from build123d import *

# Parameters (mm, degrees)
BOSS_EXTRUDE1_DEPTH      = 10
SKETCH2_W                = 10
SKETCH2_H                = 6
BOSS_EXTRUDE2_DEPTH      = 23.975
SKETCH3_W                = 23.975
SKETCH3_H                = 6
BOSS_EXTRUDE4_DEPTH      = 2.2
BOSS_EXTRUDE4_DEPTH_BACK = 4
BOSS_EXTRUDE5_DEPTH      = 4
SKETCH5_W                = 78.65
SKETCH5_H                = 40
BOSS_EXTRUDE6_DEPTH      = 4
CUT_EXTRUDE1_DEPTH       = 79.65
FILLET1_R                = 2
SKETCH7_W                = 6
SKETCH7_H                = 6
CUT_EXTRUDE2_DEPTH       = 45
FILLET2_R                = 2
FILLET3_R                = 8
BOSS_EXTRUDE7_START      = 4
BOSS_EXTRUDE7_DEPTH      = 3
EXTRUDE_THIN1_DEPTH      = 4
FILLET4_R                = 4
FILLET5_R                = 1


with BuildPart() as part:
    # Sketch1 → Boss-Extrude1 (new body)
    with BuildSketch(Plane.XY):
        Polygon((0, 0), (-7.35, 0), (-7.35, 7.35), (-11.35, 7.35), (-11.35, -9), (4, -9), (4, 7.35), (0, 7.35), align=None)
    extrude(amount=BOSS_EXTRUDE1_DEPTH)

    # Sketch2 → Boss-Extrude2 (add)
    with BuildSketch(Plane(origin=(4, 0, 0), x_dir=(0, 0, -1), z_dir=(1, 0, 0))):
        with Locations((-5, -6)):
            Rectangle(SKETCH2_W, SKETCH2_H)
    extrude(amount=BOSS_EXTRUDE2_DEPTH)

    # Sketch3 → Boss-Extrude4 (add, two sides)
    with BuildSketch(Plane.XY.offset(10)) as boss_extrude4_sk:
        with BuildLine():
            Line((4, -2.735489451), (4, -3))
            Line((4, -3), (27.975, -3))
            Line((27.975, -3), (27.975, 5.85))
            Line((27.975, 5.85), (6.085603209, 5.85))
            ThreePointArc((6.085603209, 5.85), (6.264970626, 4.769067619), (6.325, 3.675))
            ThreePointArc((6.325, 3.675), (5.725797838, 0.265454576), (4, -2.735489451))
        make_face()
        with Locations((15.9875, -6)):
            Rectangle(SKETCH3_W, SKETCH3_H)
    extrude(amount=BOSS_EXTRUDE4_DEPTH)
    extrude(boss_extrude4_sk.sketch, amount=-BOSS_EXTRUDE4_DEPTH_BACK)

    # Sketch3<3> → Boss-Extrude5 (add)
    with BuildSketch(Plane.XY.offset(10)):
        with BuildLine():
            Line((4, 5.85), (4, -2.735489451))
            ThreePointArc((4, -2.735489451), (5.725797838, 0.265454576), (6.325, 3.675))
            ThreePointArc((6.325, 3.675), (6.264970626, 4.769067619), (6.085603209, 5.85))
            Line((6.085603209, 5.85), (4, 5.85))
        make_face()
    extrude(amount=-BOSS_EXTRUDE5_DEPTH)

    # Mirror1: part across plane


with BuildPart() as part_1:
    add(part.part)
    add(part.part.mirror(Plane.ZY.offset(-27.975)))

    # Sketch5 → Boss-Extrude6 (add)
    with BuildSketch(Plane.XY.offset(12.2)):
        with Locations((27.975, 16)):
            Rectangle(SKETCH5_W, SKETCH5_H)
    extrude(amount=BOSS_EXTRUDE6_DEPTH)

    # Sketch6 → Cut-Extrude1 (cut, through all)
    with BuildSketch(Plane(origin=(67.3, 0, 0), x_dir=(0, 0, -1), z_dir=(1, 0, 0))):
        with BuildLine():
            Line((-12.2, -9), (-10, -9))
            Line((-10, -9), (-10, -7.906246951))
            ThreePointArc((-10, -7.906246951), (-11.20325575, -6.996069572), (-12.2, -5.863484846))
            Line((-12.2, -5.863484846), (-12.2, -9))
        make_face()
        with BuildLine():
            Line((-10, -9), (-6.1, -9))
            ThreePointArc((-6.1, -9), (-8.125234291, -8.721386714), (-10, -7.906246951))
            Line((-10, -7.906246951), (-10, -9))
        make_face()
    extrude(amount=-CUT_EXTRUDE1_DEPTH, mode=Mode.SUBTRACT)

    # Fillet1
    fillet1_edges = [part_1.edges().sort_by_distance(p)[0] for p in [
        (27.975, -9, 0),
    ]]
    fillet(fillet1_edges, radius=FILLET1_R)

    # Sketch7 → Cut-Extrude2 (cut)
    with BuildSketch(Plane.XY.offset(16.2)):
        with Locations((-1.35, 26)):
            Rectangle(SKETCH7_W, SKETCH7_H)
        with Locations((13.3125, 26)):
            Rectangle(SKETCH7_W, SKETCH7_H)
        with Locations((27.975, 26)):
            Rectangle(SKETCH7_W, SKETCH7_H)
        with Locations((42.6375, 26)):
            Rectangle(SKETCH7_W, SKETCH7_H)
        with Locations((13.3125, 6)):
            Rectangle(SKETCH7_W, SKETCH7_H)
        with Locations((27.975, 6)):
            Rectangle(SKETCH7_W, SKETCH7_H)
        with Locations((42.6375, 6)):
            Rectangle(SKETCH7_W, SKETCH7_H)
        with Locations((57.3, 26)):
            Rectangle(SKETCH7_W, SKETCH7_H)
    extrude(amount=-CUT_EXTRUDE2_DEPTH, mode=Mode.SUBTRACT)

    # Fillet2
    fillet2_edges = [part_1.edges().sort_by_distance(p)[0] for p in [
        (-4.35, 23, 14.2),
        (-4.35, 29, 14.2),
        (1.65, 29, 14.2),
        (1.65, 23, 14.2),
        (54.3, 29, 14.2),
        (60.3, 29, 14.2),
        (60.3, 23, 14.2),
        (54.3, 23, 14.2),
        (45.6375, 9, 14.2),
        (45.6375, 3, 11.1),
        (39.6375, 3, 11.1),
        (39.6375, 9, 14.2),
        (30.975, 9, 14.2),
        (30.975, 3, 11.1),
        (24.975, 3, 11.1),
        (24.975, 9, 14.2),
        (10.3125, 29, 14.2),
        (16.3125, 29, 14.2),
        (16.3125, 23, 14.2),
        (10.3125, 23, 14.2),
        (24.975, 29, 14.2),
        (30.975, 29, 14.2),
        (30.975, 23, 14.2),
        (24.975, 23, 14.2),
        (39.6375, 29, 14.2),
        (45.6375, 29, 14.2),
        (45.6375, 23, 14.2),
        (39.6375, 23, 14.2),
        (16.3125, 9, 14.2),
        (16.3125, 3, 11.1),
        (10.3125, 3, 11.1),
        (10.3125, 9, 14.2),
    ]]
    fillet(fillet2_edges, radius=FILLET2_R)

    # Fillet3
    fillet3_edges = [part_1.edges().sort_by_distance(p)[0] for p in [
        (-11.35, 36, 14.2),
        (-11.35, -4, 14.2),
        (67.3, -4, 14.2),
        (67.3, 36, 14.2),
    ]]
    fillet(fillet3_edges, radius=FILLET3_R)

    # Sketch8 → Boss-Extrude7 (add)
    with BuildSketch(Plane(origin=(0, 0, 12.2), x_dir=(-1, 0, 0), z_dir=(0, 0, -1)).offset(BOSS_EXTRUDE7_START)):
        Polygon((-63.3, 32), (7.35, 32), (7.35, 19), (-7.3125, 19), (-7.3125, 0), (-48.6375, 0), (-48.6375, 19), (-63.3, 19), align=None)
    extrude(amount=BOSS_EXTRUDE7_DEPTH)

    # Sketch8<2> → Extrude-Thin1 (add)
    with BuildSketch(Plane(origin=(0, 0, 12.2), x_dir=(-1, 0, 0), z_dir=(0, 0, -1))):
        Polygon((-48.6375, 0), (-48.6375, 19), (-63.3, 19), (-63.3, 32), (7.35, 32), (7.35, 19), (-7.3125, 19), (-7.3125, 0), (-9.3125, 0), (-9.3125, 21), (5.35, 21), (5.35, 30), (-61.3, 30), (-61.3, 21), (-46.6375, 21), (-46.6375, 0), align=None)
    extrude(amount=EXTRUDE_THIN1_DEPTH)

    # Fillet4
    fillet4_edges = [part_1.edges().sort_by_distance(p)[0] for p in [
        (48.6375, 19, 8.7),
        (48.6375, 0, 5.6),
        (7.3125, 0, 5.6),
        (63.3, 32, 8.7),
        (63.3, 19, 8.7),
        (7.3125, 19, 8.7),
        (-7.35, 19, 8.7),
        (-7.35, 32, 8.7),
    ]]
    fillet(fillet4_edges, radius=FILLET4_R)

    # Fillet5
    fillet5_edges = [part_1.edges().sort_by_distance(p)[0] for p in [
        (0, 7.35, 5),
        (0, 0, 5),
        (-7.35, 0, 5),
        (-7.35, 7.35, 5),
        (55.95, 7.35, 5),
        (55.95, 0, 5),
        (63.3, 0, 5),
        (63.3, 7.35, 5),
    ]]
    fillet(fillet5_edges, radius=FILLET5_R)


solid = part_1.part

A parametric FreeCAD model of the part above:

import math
import FreeCAD as App
import Part
import Sketcher
Q = App.Units.Quantity


def edges_at(feature, points):
    """Names of the edges that pass closest to the given points."""
    edges = feature.Shape.Edges
    near = lambda p: min(range(len(edges)), key=lambda i: edges[i].distToShape(Part.Vertex(*p))[0])
    return sorted({f"Edge{near(p) + 1}" for p in points})

doc = App.newDocument("Part")
params = doc.addObject("Spreadsheet::Sheet", "Params")
for row, (alias, value) in enumerate([
    ("sketch1_width", "4 mm"),
    ("sketch1_width2", "7.35 mm"),
    ("pad1_length", "10 mm"),
    ("sketch2_width", "6 mm"),
    ("sketch2_height", "10 mm"),
    ("pad2_length", "23.975 mm"),
    ("sketch3_radius", "10 mm"),
    ("sketch3_height", "14.85 mm"),
    ("pad3_length", "2.2 mm"),
    ("pad3_length2", "4 mm"),
    ("sketch4_radius", "10 mm"),
    ("pad4_length", "4 mm"),
    ("sketch5_height", "40 mm"),
    ("sketch5_width", "78.65 mm"),
    ("pad5_length", "4 mm"),
    ("sketch6_radius", "7.5 mm"),
    ("sketch6_height", "6.1 mm"),
    ("fillet_radius", "2 mm"),
    ("sketch7_width", "6 mm"),
    ("pocket2_length", "45 mm"),
    ("fillet2_radius", "2 mm"),
    ("fillet3_radius", "8 mm"),
    ("sketch8_height", "13 mm"),
    ("sketch8_height2", "19 mm"),
    ("sketch8_width", "70.65 mm"),
    ("pad6_length", "3 mm"),
    ("sketch9_width", "2 mm"),
    ("sketch9_height", "19 mm"),
    ("sketch9_height2", "21 mm"),
    ("sketch9_height3", "9 mm"),
    ("sketch9_height4", "13 mm"),
    ("pad7_length", "4 mm"),
    ("fillet4_radius", "4 mm"),
    ("fillet5_radius", "1 mm"),
], start=1):
    params.set(f"A{row}", alias)
    params.set(f"B{row}", "=" + value)
    params.setAlias(f"B{row}", alias)

body = doc.addObject("PartDesign::Body", "Body")

sketch1 = body.newObject("Sketcher::SketchObject", "Sketch")
sketch1.AttachmentSupport = (doc.getObject("XY_Plane"), [""])
sketch1.MapMode = "FlatFace"
sketch1.addGeometry(Part.LineSegment(App.Vector(0, 0, 0), App.Vector(-7.3, 0, 0)), False)
sketch1.addGeometry(Part.LineSegment(App.Vector(-7.3, 0, 0), App.Vector(-7.3, 7.3, 0)), False)
sketch1.addGeometry(Part.LineSegment(App.Vector(-7.3, 7.3, 0), App.Vector(-11.3, 7.3, 0)), False)
sketch1.addGeometry(Part.LineSegment(App.Vector(-11.3, 7.3, 0), App.Vector(-11.3, -9, 0)), False)
sketch1.addGeometry(Part.LineSegment(App.Vector(-11.3, -9, 0), App.Vector(4, -9, 0)), False)
sketch1.addGeometry(Part.LineSegment(App.Vector(4, -9, 0), App.Vector(4, 7.3, 0)), False)
sketch1.addGeometry(Part.LineSegment(App.Vector(4, 7.3, 0), App.Vector(0, 7.3, 0)), False)
sketch1.addGeometry(Part.LineSegment(App.Vector(0, 7.3, 0), App.Vector(0, 0, 0)), False)
sketch1.addConstraint(Sketcher.Constraint("Coincident", 0, 2, 1, 1))
sketch1.addConstraint(Sketcher.Constraint("Coincident", 1, 2, 2, 1))
sketch1.addConstraint(Sketcher.Constraint("Coincident", 2, 2, 3, 1))
sketch1.addConstraint(Sketcher.Constraint("Coincident", 3, 2, 4, 1))
sketch1.addConstraint(Sketcher.Constraint("Coincident", 4, 2, 5, 1))
sketch1.addConstraint(Sketcher.Constraint("Coincident", 5, 2, 6, 1))
sketch1.addConstraint(Sketcher.Constraint("Coincident", 6, 2, 7, 1))
sketch1.addConstraint(Sketcher.Constraint("Coincident", 7, 2, 0, 1))
sketch1.addConstraint(Sketcher.Constraint("Horizontal", 0))
sketch1.addConstraint(Sketcher.Constraint("Vertical", 1))
sketch1.addConstraint(Sketcher.Constraint("Horizontal", 2))
sketch1.addConstraint(Sketcher.Constraint("Vertical", 3))
sketch1.addConstraint(Sketcher.Constraint("Horizontal", 4))
sketch1.addConstraint(Sketcher.Constraint("Vertical", 5))
sketch1.addConstraint(Sketcher.Constraint("Horizontal", 6))
sketch1.addConstraint(Sketcher.Constraint("Vertical", 7))
sketch1.addConstraint(Sketcher.Constraint("Coincident", 7, 2, -1, 1))
sketch1.addConstraint(Sketcher.Constraint("Horizontal", 2, 2, 5, 2))
sketch1.addConstraint(Sketcher.Constraint("Equal", 2, 6))
sketch1.addConstraint(Sketcher.Constraint("Equal", 0, 1))
sketch1.addConstraint(Sketcher.Constraint("DistanceX", 2, 2, 2, 1, Q("4 mm")))
sketch1.addConstraint(Sketcher.Constraint("DistanceY", 3, 2, -1, 1, Q("9 mm")))
sketch1.addConstraint(Sketcher.Constraint("DistanceX", 0, 2, 0, 1, Q("7.35 mm")))
sketch1.setExpression("Constraints[20]", "Params.sketch1_width")
sketch1.setExpression("Constraints[22]", "Params.sketch1_width2")
pad1 = body.newObject("PartDesign::Pad", "Pad")
pad1.Profile = sketch1
pad1.setExpression("Length", "Params.pad1_length")

sketch2 = body.newObject("Sketcher::SketchObject", "Sketch001")
sketch2.AttachmentSupport = (doc.getObject("YZ_Plane"), [""])
sketch2.MapMode = "FlatFace"
sketch2.AttachmentOffset = App.Placement(App.Vector(0, 0, 4), App.Rotation())
sketch2.addGeometry(Part.LineSegment(App.Vector(-3, 10, 0), App.Vector(-9, 10, 0)), False)
sketch2.addGeometry(Part.LineSegment(App.Vector(-9, 10, 0), App.Vector(-9, 0, 0)), False)
sketch2.addGeometry(Part.LineSegment(App.Vector(-9, 0, 0), App.Vector(-3, 0, 0)), False)
sketch2.addGeometry(Part.LineSegment(App.Vector(-3, 0, 0), App.Vector(-3, 10, 0)), False)
sketch2.addConstraint(Sketcher.Constraint("Coincident", 0, 2, 1, 1))
sketch2.addConstraint(Sketcher.Constraint("Coincident", 1, 2, 2, 1))
sketch2.addConstraint(Sketcher.Constraint("Coincident", 2, 2, 3, 1))
sketch2.addConstraint(Sketcher.Constraint("Coincident", 3, 2, 0, 1))
sketch2.addConstraint(Sketcher.Constraint("Horizontal", 0))
sketch2.addConstraint(Sketcher.Constraint("Vertical", 1))
sketch2.addConstraint(Sketcher.Constraint("Horizontal", 2))
sketch2.addConstraint(Sketcher.Constraint("Vertical", 3))
sketch2.addConstraint(Sketcher.Constraint("PointOnObject", 1, 2, -1))
sketch2.addConstraint(Sketcher.Constraint("DistanceX", 0, 2, 0, 1, Q("6 mm")))
sketch2.addConstraint(Sketcher.Constraint("DistanceY", 1, 2, 1, 1, Q("10 mm")))
sketch2.addConstraint(Sketcher.Constraint("DistanceX", 0, 2, -1, 1, Q("9 mm")))
sketch2.setExpression("Constraints[9]", "Params.sketch2_width")
sketch2.setExpression("Constraints[10]", "Params.sketch2_height")
pad2 = body.newObject("PartDesign::Pad", "Pad001")
pad2.Profile = sketch2
pad2.setExpression("Length", "Params.pad2_length")

sketch3 = body.newObject("Sketcher::SketchObject", "Sketch002")
sketch3.AttachmentSupport = (doc.getObject("XY_Plane"), [""])
sketch3.MapMode = "FlatFace"
sketch3.AttachmentOffset = App.Placement(App.Vector(0, 0, 10), App.Rotation())
sketch3.addGeometry(Part.LineSegment(App.Vector(4, -2.7, 0), App.Vector(4, -9, 0)), False)
sketch3.addGeometry(Part.LineSegment(App.Vector(4, -9, 0), App.Vector(28, -9, 0)), False)
sketch3.addGeometry(Part.LineSegment(App.Vector(28, -9, 0), App.Vector(28, 5.8, 0)), False)
sketch3.addGeometry(Part.LineSegment(App.Vector(28, 5.8, 0), App.Vector(6.1, 5.8, 0)), False)
sketch3.addGeometry(Part.ArcOfCircle(Part.Circle(App.Vector(-3.7, 3.7, 0), App.Vector(0, 0, 1), 10), math.radians(0), math.radians(12.56)), False)
sketch3.addGeometry(Part.ArcOfCircle(Part.Circle(App.Vector(-3.7, 3.7, 0), App.Vector(0, 0, 1), 10), math.radians(-40), math.radians(0)), False)
sketch3.addConstraint(Sketcher.Constraint("Coincident", 0, 2, 1, 1))
sketch3.addConstraint(Sketcher.Constraint("Coincident", 1, 2, 2, 1))
sketch3.addConstraint(Sketcher.Constraint("Coincident", 2, 2, 3, 1))
sketch3.addConstraint(Sketcher.Constraint("Coincident", 3, 2, 4, 2))
sketch3.addConstraint(Sketcher.Constraint("Tangent", 4, 1, 5, 2))
sketch3.addConstraint(Sketcher.Constraint("Coincident", 5, 1, 0, 1))
sketch3.addConstraint(Sketcher.Constraint("Vertical", 0))
sketch3.addConstraint(Sketcher.Constraint("Horizontal", 1))
sketch3.addConstraint(Sketcher.Constraint("Vertical", 2))
sketch3.addConstraint(Sketcher.Constraint("Horizontal", 3))
sketch3.addConstraint(Sketcher.Constraint("Equal", 4, 5))
sketch3.addConstraint(Sketcher.Constraint("Horizontal", 5, 3, 4, 1))
sketch3.addConstraint(Sketcher.Constraint("Radius", 4, Q("10 mm")))
sketch3.addConstraint(Sketcher.Constraint("DistanceX", -1, 1, 0, 2, Q("4 mm")))
sketch3.addConstraint(Sketcher.Constraint("DistanceY", 0, 2, -1, 1, Q("9 mm")))
sketch3.addConstraint(Sketcher.Constraint("DistanceY", 2, 1, 2, 2, Q("14.85 mm")))
sketch3.addConstraint(Sketcher.Constraint("DistanceX", 1, 1, 1, 2, Q("23.975 mm")))
sketch3.addConstraint(Sketcher.Constraint("DistanceX", 4, 3, 1, 2, Q("31.65 mm")))
sketch3.addConstraint(Sketcher.Constraint("DistanceY", -1, 1, 4, 3, Q("3.675 mm")))
sketch3.setExpression("Constraints[12]", "Params.sketch3_radius")
sketch3.setExpression("Constraints[15]", "Params.sketch3_height")
pad3 = body.newObject("PartDesign::Pad", "Pad002")
pad3.Profile = sketch3
pad3.Type = "TwoLengths"
pad3.setExpression("Length", "Params.pad3_length")
pad3.setExpression("Length2", "Params.pad3_length2")

sketch4 = body.newObject("Sketcher::SketchObject", "Sketch003")
sketch4.AttachmentSupport = (doc.getObject("XY_Plane"), [""])
sketch4.MapMode = "FlatFace"
sketch4.AttachmentOffset = App.Placement(App.Vector(0, 0, 10), App.Rotation())
sketch4.addGeometry(Part.LineSegment(App.Vector(4, 5.8, 0), App.Vector(4, -2.7, 0)), False)
sketch4.addGeometry(Part.ArcOfCircle(Part.Circle(App.Vector(-3.7, 3.7, 0), App.Vector(0, 0, 1), 10), math.radians(-40), math.radians(0)), False)
sketch4.addGeometry(Part.ArcOfCircle(Part.Circle(App.Vector(-3.7, 3.7, 0), App.Vector(0, 0, 1), 10), math.radians(0), math.radians(12.56)), False)
sketch4.addGeometry(Part.LineSegment(App.Vector(6.1, 5.8, 0), App.Vector(4, 5.8, 0)), False)
sketch4.addConstraint(Sketcher.Constraint("Coincident", 0, 2, 1, 1))
sketch4.addConstraint(Sketcher.Constraint("Tangent", 1, 2, 2, 1))
sketch4.addConstraint(Sketcher.Constraint("Coincident", 2, 2, 3, 1))
sketch4.addConstraint(Sketcher.Constraint("Coincident", 3, 2, 0, 1))
sketch4.addConstraint(Sketcher.Constraint("Vertical", 0))
sketch4.addConstraint(Sketcher.Constraint("Horizontal", 3))
sketch4.addConstraint(Sketcher.Constraint("Equal", 1, 2))
sketch4.addConstraint(Sketcher.Constraint("Horizontal", 2, 3, 1, 2))
sketch4.addConstraint(Sketcher.Constraint("Radius", 1, Q("10 mm")))
sketch4.addConstraint(Sketcher.Constraint("DistanceX", -1, 1, 0, 2, Q("4 mm")))
sketch4.addConstraint(Sketcher.Constraint("DistanceY", -1, 1, 2, 2, Q("5.85 mm")))
sketch4.addConstraint(Sketcher.Constraint("DistanceX", 1, 3, -1, 1, Q("3.675 mm")))
sketch4.addConstraint(Sketcher.Constraint("DistanceY", -1, 1, 1, 3, Q("3.675 mm")))
sketch4.setExpression("Constraints[8]", "Params.sketch4_radius")
pad4 = body.newObject("PartDesign::Pad", "Pad003")
pad4.Profile = sketch4
pad4.setExpression("Length", "Params.pad4_length")
pad4.Reversed = True
body2 = doc.addObject("PartDesign::Body", "Body001")
doc.recompute()

body2.BaseFeature = body
doc.recompute()

mirroring = doc.addObject("Part::Mirroring", "Mirroring")
mirroring.Source = body
mirroring.Base = App.Vector(27.975, 0, 0)
mirroring.Normal = App.Vector(-1, 0, 0)
body3 = doc.addObject("PartDesign::Body", "Body002")
body3.BaseFeature = mirroring
boolean = body2.newObject("PartDesign::Boolean", "Boolean")
boolean.Type = "Fuse"
boolean.addObjects([body3])
doc.recompute()

sketch5 = body2.newObject("Sketcher::SketchObject", "Sketch004")
sketch5.AttachmentSupport = (doc.getObject("XY_Plane001"), [""])
sketch5.MapMode = "FlatFace"
sketch5.AttachmentOffset = App.Placement(App.Vector(0, 0, 12.2), App.Rotation())
sketch5.addGeometry(Part.LineSegment(App.Vector(-11, 36, 0), App.Vector(-11, -4, 0)), False)
sketch5.addGeometry(Part.LineSegment(App.Vector(-11, -4, 0), App.Vector(67, -4, 0)), False)
sketch5.addGeometry(Part.LineSegment(App.Vector(67, -4, 0), App.Vector(67, 36, 0)), False)
sketch5.addGeometry(Part.LineSegment(App.Vector(67, 36, 0), App.Vector(-11, 36, 0)), False)
sketch5.addConstraint(Sketcher.Constraint("Coincident", 0, 2, 1, 1))
sketch5.addConstraint(Sketcher.Constraint("Coincident", 1, 2, 2, 1))
sketch5.addConstraint(Sketcher.Constraint("Coincident", 2, 2, 3, 1))
sketch5.addConstraint(Sketcher.Constraint("Coincident", 3, 2, 0, 1))
sketch5.addConstraint(Sketcher.Constraint("Vertical", 0))
sketch5.addConstraint(Sketcher.Constraint("Horizontal", 1))
sketch5.addConstraint(Sketcher.Constraint("Vertical", 2))
sketch5.addConstraint(Sketcher.Constraint("Horizontal", 3))
sketch5.addConstraint(Sketcher.Constraint("DistanceY", 0, 2, 0, 1, Q("40 mm")))
sketch5.addConstraint(Sketcher.Constraint("DistanceY", 0, 2, -1, 1, Q("4 mm")))
sketch5.addConstraint(Sketcher.Constraint("DistanceX", 1, 1, 1, 2, Q("78.65 mm")))
sketch5.addConstraint(Sketcher.Constraint("DistanceX", -1, 1, 1, 2, Q("67.3 mm")))
sketch5.setExpression("Constraints[8]", "Params.sketch5_height")
sketch5.setExpression("Constraints[10]", "Params.sketch5_width")
pad5 = body2.newObject("PartDesign::Pad", "Pad004")
pad5.Profile = sketch5
pad5.setExpression("Length", "Params.pad5_length")

sketch6 = body2.newObject("Sketcher::SketchObject", "Sketch005")
sketch6.AttachmentSupport = (doc.getObject("YZ_Plane001"), [""])
sketch6.MapMode = "FlatFace"
sketch6.AttachmentOffset = App.Placement(App.Vector(0, 0, 67.3), App.Rotation())
sketch6.addGeometry(Part.LineSegment(App.Vector(-9, 12.2, 0), App.Vector(-9, 6.1, 0)), False)
sketch6.addGeometry(Part.ArcOfCircle(Part.Circle(App.Vector(-1.5, 6.1, 0), App.Vector(0, 0, 1), 7.5), math.radians(149), math.radians(180)), False)
sketch6.addGeometry(Part.ArcOfCircle(Part.Circle(App.Vector(-1.5, 6.1, 0), App.Vector(0, 0, 1), 7.5), math.radians(126), math.radians(149)), False)
sketch6.addGeometry(Part.LineSegment(App.Vector(-5.9, 12.2, 0), App.Vector(-9, 12.2, 0)), False)
sketch6.addConstraint(Sketcher.Constraint("Tangent", 0, 2, 1, 2))
sketch6.addConstraint(Sketcher.Constraint("Tangent", 1, 1, 2, 2))
sketch6.addConstraint(Sketcher.Constraint("Coincident", 2, 1, 3, 1))
sketch6.addConstraint(Sketcher.Constraint("Coincident", 3, 2, 0, 1))
sketch6.addConstraint(Sketcher.Constraint("Vertical", 0))
sketch6.addConstraint(Sketcher.Constraint("Horizontal", 3))
sketch6.addConstraint(Sketcher.Constraint("Equal", 1, 2))
sketch6.addConstraint(Sketcher.Constraint("Radius", 1, Q("7.5 mm")))
sketch6.addConstraint(Sketcher.Constraint("DistanceY", 0, 2, 0, 1, Q("6.1 mm")))
sketch6.addConstraint(Sketcher.Constraint("DistanceX", 0, 2, -1, 1, Q("9 mm")))
sketch6.addConstraint(Sketcher.Constraint("DistanceY", -1, 1, 1, 1, Q("10 mm")))
sketch6.addConstraint(Sketcher.Constraint("DistanceY", -1, 1, 1, 3, Q("6.1 mm")))
sketch6.setExpression("Constraints[7]", "Params.sketch6_radius")
sketch6.setExpression("Constraints[8]", "Params.sketch6_height")
pocket1 = body2.newObject("PartDesign::Pocket", "Pocket")
pocket1.Profile = sketch6
pocket1.Type = "ThroughAll"
doc.recompute()

fillet = body2.newObject("PartDesign::Fillet", "Fillet")
fillet.Base = (pocket1, edges_at(pocket1, [(27.975, -9, 0)]))
fillet.setExpression("Radius", "Params.fillet_radius")

sketch7 = body2.newObject("Sketcher::SketchObject", "Sketch006")
sketch7.AttachmentSupport = (doc.getObject("XY_Plane001"), [""])
sketch7.MapMode = "FlatFace"
sketch7.AttachmentOffset = App.Placement(App.Vector(0, 0, 16.2), App.Rotation())
sketch7.addGeometry(Part.LineSegment(App.Vector(-4, 29, 0), App.Vector(-4, 23, 0)), False)
sketch7.addGeometry(Part.LineSegment(App.Vector(-4, 23, 0), App.Vector(2, 23, 0)), False)
sketch7.addGeometry(Part.LineSegment(App.Vector(2, 23, 0), App.Vector(2, 29, 0)), False)
sketch7.addGeometry(Part.LineSegment(App.Vector(2, 29, 0), App.Vector(-4, 29, 0)), False)
sketch7.addGeometry(Part.LineSegment(App.Vector(10, 29, 0), App.Vector(10, 23, 0)), False)
sketch7.addGeometry(Part.LineSegment(App.Vector(10, 23, 0), App.Vector(16, 23, 0)), False)
sketch7.addGeometry(Part.LineSegment(App.Vector(16, 23, 0), App.Vector(16, 29, 0)), False)
sketch7.addGeometry(Part.LineSegment(App.Vector(16, 29, 0), App.Vector(10, 29, 0)), False)
sketch7.addGeometry(Part.LineSegment(App.Vector(25, 29, 0), App.Vector(25, 23, 0)), False)
sketch7.addGeometry(Part.LineSegment(App.Vector(25, 23, 0), App.Vector(31, 23, 0)), False)
sketch7.addGeometry(Part.LineSegment(App.Vector(31, 23, 0), App.Vector(31, 29, 0)), False)
sketch7.addGeometry(Part.LineSegment(App.Vector(31, 29, 0), App.Vector(25, 29, 0)), False)
sketch7.addGeometry(Part.LineSegment(App.Vector(40, 29, 0), App.Vector(40, 23, 0)), False)
sketch7.addGeometry(Part.LineSegment(App.Vector(40, 23, 0), App.Vector(46, 23, 0)), False)
sketch7.addGeometry(Part.LineSegment(App.Vector(46, 23, 0), App.Vector(46, 29, 0)), False)
sketch7.addGeometry(Part.LineSegment(App.Vector(46, 29, 0), App.Vector(40, 29, 0)), False)
sketch7.addGeometry(Part.LineSegment(App.Vector(10, 9, 0), App.Vector(10, 3, 0)), False)
sketch7.addGeometry(Part.LineSegment(App.Vector(10, 3, 0), App.Vector(16, 3, 0)), False)
sketch7.addGeometry(Part.LineSegment(App.Vector(16, 3, 0), App.Vector(16, 9, 0)), False)
sketch7.addGeometry(Part.LineSegment(App.Vector(16, 9, 0), App.Vector(10, 9, 0)), False)
sketch7.addGeometry(Part.LineSegment(App.Vector(25, 9, 0), App.Vector(25, 3, 0)), False)
sketch7.addGeometry(Part.LineSegment(App.Vector(25, 3, 0), App.Vector(31, 3, 0)), False)
sketch7.addGeometry(Part.LineSegment(App.Vector(31, 3, 0), App.Vector(31, 9, 0)), False)
sketch7.addGeometry(Part.LineSegment(App.Vector(31, 9, 0), App.Vector(25, 9, 0)), False)
sketch7.addGeometry(Part.LineSegment(App.Vector(40, 9, 0), App.Vector(40, 3, 0)), False)
sketch7.addGeometry(Part.LineSegment(App.Vector(40, 3, 0), App.Vector(46, 3, 0)), False)
sketch7.addGeometry(Part.LineSegment(App.Vector(46, 3, 0), App.Vector(46, 9, 0)), False)
sketch7.addGeometry(Part.LineSegment(App.Vector(46, 9, 0), App.Vector(40, 9, 0)), False)
sketch7.addGeometry(Part.LineSegment(App.Vector(54, 29, 0), App.Vector(54, 23, 0)), False)
sketch7.addGeometry(Part.LineSegment(App.Vector(54, 23, 0), App.Vector(60, 23, 0)), False)
sketch7.addGeometry(Part.LineSegment(App.Vector(60, 23, 0), App.Vector(60, 29, 0)), False)
sketch7.addGeometry(Part.LineSegment(App.Vector(60, 29, 0), App.Vector(54, 29, 0)), False)
sketch7.addConstraint(Sketcher.Constraint("Coincident", 0, 2, 1, 1))
sketch7.addConstraint(Sketcher.Constraint("Coincident", 1, 2, 2, 1))
sketch7.addConstraint(Sketcher.Constraint("Coincident", 2, 2, 3, 1))
sketch7.addConstraint(Sketcher.Constraint("Coincident", 3, 2, 0, 1))
sketch7.addConstraint(Sketcher.Constraint("Coincident", 4, 2, 5, 1))
sketch7.addConstraint(Sketcher.Constraint("Coincident", 5, 2, 6, 1))
sketch7.addConstraint(Sketcher.Constraint("Coincident", 6, 2, 7, 1))
sketch7.addConstraint(Sketcher.Constraint("Coincident", 7, 2, 4, 1))
sketch7.addConstraint(Sketcher.Constraint("Coincident", 8, 2, 9, 1))
sketch7.addConstraint(Sketcher.Constraint("Coincident", 9, 2, 10, 1))
sketch7.addConstraint(Sketcher.Constraint("Coincident", 10, 2, 11, 1))
sketch7.addConstraint(Sketcher.Constraint("Coincident", 11, 2, 8, 1))
sketch7.addConstraint(Sketcher.Constraint("Coincident", 12, 2, 13, 1))
sketch7.addConstraint(Sketcher.Constraint("Coincident", 13, 2, 14, 1))
sketch7.addConstraint(Sketcher.Constraint("Coincident", 14, 2, 15, 1))
sketch7.addConstraint(Sketcher.Constraint("Coincident", 15, 2, 12, 1))
sketch7.addConstraint(Sketcher.Constraint("Coincident", 16, 2, 17, 1))
sketch7.addConstraint(Sketcher.Constraint("Coincident", 17, 2, 18, 1))
sketch7.addConstraint(Sketcher.Constraint("Coincident", 18, 2, 19, 1))
sketch7.addConstraint(Sketcher.Constraint("Coincident", 19, 2, 16, 1))
sketch7.addConstraint(Sketcher.Constraint("Coincident", 20, 2, 21, 1))
sketch7.addConstraint(Sketcher.Constraint("Coincident", 21, 2, 22, 1))
sketch7.addConstraint(Sketcher.Constraint("Coincident", 22, 2, 23, 1))
sketch7.addConstraint(Sketcher.Constraint("Coincident", 23, 2, 20, 1))
sketch7.addConstraint(Sketcher.Constraint("Coincident", 24, 2, 25, 1))
sketch7.addConstraint(Sketcher.Constraint("Coincident", 25, 2, 26, 1))
sketch7.addConstraint(Sketcher.Constraint("Coincident", 26, 2, 27, 1))
sketch7.addConstraint(Sketcher.Constraint("Coincident", 27, 2, 24, 1))
sketch7.addConstraint(Sketcher.Constraint("Coincident", 28, 2, 29, 1))
sketch7.addConstraint(Sketcher.Constraint("Coincident", 29, 2, 30, 1))
sketch7.addConstraint(Sketcher.Constraint("Coincident", 30, 2, 31, 1))
sketch7.addConstraint(Sketcher.Constraint("Coincident", 31, 2, 28, 1))
sketch7.addConstraint(Sketcher.Constraint("Vertical", 0))
sketch7.addConstraint(Sketcher.Constraint("Horizontal", 1))
sketch7.addConstraint(Sketcher.Constraint("Vertical", 2))
sketch7.addConstraint(Sketcher.Constraint("Horizontal", 3))
sketch7.addConstraint(Sketcher.Constraint("Vertical", 4))
sketch7.addConstraint(Sketcher.Constraint("Horizontal", 5))
sketch7.addConstraint(Sketcher.Constraint("Vertical", 6))
sketch7.addConstraint(Sketcher.Constraint("Horizontal", 7))
sketch7.addConstraint(Sketcher.Constraint("Vertical", 8))
sketch7.addConstraint(Sketcher.Constraint("Horizontal", 9))
sketch7.addConstraint(Sketcher.Constraint("Vertical", 10))
sketch7.addConstraint(Sketcher.Constraint("Horizontal", 11))
sketch7.addConstraint(Sketcher.Constraint("Vertical", 12))
sketch7.addConstraint(Sketcher.Constraint("Horizontal", 13))
sketch7.addConstraint(Sketcher.Constraint("Vertical", 14))
sketch7.addConstraint(Sketcher.Constraint("Horizontal", 15))
sketch7.addConstraint(Sketcher.Constraint("Vertical", 16))
sketch7.addConstraint(Sketcher.Constraint("Horizontal", 17))
sketch7.addConstraint(Sketcher.Constraint("Vertical", 18))
sketch7.addConstraint(Sketcher.Constraint("Horizontal", 19))
sketch7.addConstraint(Sketcher.Constraint("Vertical", 20))
sketch7.addConstraint(Sketcher.Constraint("Horizontal", 21))
sketch7.addConstraint(Sketcher.Constraint("Vertical", 22))
sketch7.addConstraint(Sketcher.Constraint("Horizontal", 23))
sketch7.addConstraint(Sketcher.Constraint("Vertical", 24))
sketch7.addConstraint(Sketcher.Constraint("Horizontal", 25))
sketch7.addConstraint(Sketcher.Constraint("Vertical", 26))
sketch7.addConstraint(Sketcher.Constraint("Horizontal", 27))
sketch7.addConstraint(Sketcher.Constraint("Vertical", 28))
sketch7.addConstraint(Sketcher.Constraint("Horizontal", 29))
sketch7.addConstraint(Sketcher.Constraint("Vertical", 30))
sketch7.addConstraint(Sketcher.Constraint("Horizontal", 31))
sketch7.addConstraint(Sketcher.Constraint("Horizontal", 1, 2, 4, 2))
sketch7.addConstraint(Sketcher.Constraint("Horizontal", 3, 2, 6, 2))
sketch7.addConstraint(Sketcher.Constraint("Horizontal", 5, 2, 8, 2))
sketch7.addConstraint(Sketcher.Constraint("Horizontal", 7, 2, 10, 2))
sketch7.addConstraint(Sketcher.Constraint("Horizontal", 9, 2, 12, 2))
sketch7.addConstraint(Sketcher.Constraint("Horizontal", 11, 2, 14, 2))
sketch7.addConstraint(Sketcher.Constraint("Horizontal", 17, 2, 20, 2))
sketch7.addConstraint(Sketcher.Constraint("Horizontal", 19, 2, 22, 2))
sketch7.addConstraint(Sketcher.Constraint("Horizontal", 21, 2, 24, 2))
sketch7.addConstraint(Sketcher.Constraint("Horizontal", 23, 2, 26, 2))
sketch7.addConstraint(Sketcher.Constraint("Horizontal", 13, 2, 28, 2))
sketch7.addConstraint(Sketcher.Constraint("Horizontal", 15, 2, 30, 2))
sketch7.addConstraint(Sketcher.Constraint("Vertical", 7, 2, 16, 2))
sketch7.addConstraint(Sketcher.Constraint("Vertical", 6, 2, 17, 2))
sketch7.addConstraint(Sketcher.Constraint("Vertical", 11, 2, 20, 2))
sketch7.addConstraint(Sketcher.Constraint("Vertical", 10, 2, 21, 2))
sketch7.addConstraint(Sketcher.Constraint("Vertical", 15, 2, 24, 2))
sketch7.addConstraint(Sketcher.Constraint("Vertical", 14, 2, 25, 2))
sketch7.addConstraint(Sketcher.Constraint("Equal", 3, 5))
sketch7.addConstraint(Sketcher.Constraint("Equal", 7, 9))
sketch7.addConstraint(Sketcher.Constraint("Equal", 11, 13))
sketch7.addConstraint(Sketcher.Constraint("Equal", 27, 29))
sketch7.addConstraint(Sketcher.Constraint("Equal", 31, 0))
sketch7.addConstraint(Sketcher.Constraint("Equal", 14, 16))
sketch7.addConstraint(Sketcher.Constraint("DistanceX", 1, 1, 1, 2, Q("6 mm")))
sketch7.addConstraint(Sketcher.Constraint("DistanceY", -1, 1, 0, 2, Q("23 mm")))
sketch7.addConstraint(Sketcher.Constraint("DistanceY", -1, 1, 16, 2, Q("3 mm")))
sketch7.addConstraint(Sketcher.Constraint("DistanceX", -1, 1, 28, 2, Q("54.3 mm")))
sketch7.addConstraint(Sketcher.Constraint("DistanceX", 0, 2, -1, 1, Q("4.35 mm")))
sketch7.addConstraint(Sketcher.Constraint("DistanceX", -1, 1, 8, 2, Q("24.975 mm")))
sketch7.addConstraint(Sketcher.Constraint("DistanceX", 5, 2, 12, 2, Q("23.325 mm")))
sketch7.addConstraint(Sketcher.Constraint("DistanceX", -1, 1, 4, 2, Q("10.3125 mm")))
sketch7.setExpression("Constraints[88]", "Params.sketch7_width")
pocket2 = body2.newObject("PartDesign::Pocket", "Pocket001")
pocket2.Profile = sketch7
pocket2.setExpression("Length", "Params.pocket2_length")
doc.recompute()

fillet2 = body2.newObject("PartDesign::Fillet", "Fillet001")
fillet2.Base = (pocket2, edges_at(pocket2, [
    (-4.35, 23, 14.2),
    (-4.35, 29, 14.2),
    (1.65, 29, 14.2),
    (1.65, 23, 14.2),
    (54.3, 29, 14.2),
    (60.3, 29, 14.2),
    (60.3, 23, 14.2),
    (54.3, 23, 14.2),
    (45.638, 9, 14.2),
    (45.638, 3, 11.1),
    (39.638, 3, 11.1),
    (39.638, 9, 14.2),
    (30.975, 9, 14.2),
    (30.975, 3, 11.1),
    (24.975, 3, 11.1),
    (24.975, 9, 14.2),
    (10.312, 29, 14.2),
    (16.312, 29, 14.2),
    (16.312, 23, 14.2),
    (10.312, 23, 14.2),
    (24.975, 29, 14.2),
    (30.975, 29, 14.2),
    (30.975, 23, 14.2),
    (24.975, 23, 14.2),
    (39.638, 29, 14.2),
    (45.638, 29, 14.2),
    (45.638, 23, 14.2),
    (39.638, 23, 14.2),
    (16.312, 9, 14.2),
    (16.312, 3, 11.1),
    (10.312, 3, 11.1),
    (10.312, 9, 14.2),
]))
fillet2.setExpression("Radius", "Params.fillet2_radius")
doc.recompute()

fillet3 = body2.newObject("PartDesign::Fillet", "Fillet002")
fillet3.Base = (fillet2, edges_at(fillet2, [
    (-11.35, 36, 14.2),
    (-11.35, -4, 14.2),
    (67.3, -4, 14.2),
    (67.3, 36, 14.2),
]))
fillet3.setExpression("Radius", "Params.fillet3_radius")

sketch8 = body2.newObject("Sketcher::SketchObject", "Sketch007")
sketch8.AttachmentSupport = (doc.getObject("XY_Plane001"), [""])
sketch8.MapMode = "FlatFace"
sketch8.AttachmentOffset = App.Placement(App.Vector(0, 0, 8.2), App.Rotation())
sketch8.addGeometry(Part.LineSegment(App.Vector(-7, 32, 0), App.Vector(63, 32, 0)), False)
sketch8.addGeometry(Part.LineSegment(App.Vector(63, 32, 0), App.Vector(63, 19, 0)), False)
sketch8.addGeometry(Part.LineSegment(App.Vector(63, 19, 0), App.Vector(49, 19, 0)), False)
sketch8.addGeometry(Part.LineSegment(App.Vector(49, 19, 0), App.Vector(49, 0, 0)), False)
sketch8.addGeometry(Part.LineSegment(App.Vector(49, 0, 0), App.Vector(7, 0, 0)), False)
sketch8.addGeometry(Part.LineSegment(App.Vector(7, 0, 0), App.Vector(7, 19, 0)), False)
sketch8.addGeometry(Part.LineSegment(App.Vector(7, 19, 0), App.Vector(-7, 19, 0)), False)
sketch8.addGeometry(Part.LineSegment(App.Vector(-7, 19, 0), App.Vector(-7, 32, 0)), False)
sketch8.addConstraint(Sketcher.Constraint("Coincident", 0, 2, 1, 1))
sketch8.addConstraint(Sketcher.Constraint("Coincident", 1, 2, 2, 1))
sketch8.addConstraint(Sketcher.Constraint("Coincident", 2, 2, 3, 1))
sketch8.addConstraint(Sketcher.Constraint("Coincident", 3, 2, 4, 1))
sketch8.addConstraint(Sketcher.Constraint("Coincident", 4, 2, 5, 1))
sketch8.addConstraint(Sketcher.Constraint("Coincident", 5, 2, 6, 1))
sketch8.addConstraint(Sketcher.Constraint("Coincident", 6, 2, 7, 1))
sketch8.addConstraint(Sketcher.Constraint("Coincident", 7, 2, 0, 1))
sketch8.addConstraint(Sketcher.Constraint("Horizontal", 0))
sketch8.addConstraint(Sketcher.Constraint("Vertical", 1))
sketch8.addConstraint(Sketcher.Constraint("Horizontal", 2))
sketch8.addConstraint(Sketcher.Constraint("Vertical", 3))
sketch8.addConstraint(Sketcher.Constraint("Horizontal", 4))
sketch8.addConstraint(Sketcher.Constraint("Vertical", 5))
sketch8.addConstraint(Sketcher.Constraint("Horizontal", 6))
sketch8.addConstraint(Sketcher.Constraint("Vertical", 7))
sketch8.addConstraint(Sketcher.Constraint("PointOnObject", 3, 2, -1))
sketch8.addConstraint(Sketcher.Constraint("Horizontal", 2, 2, 5, 2))
sketch8.addConstraint(Sketcher.Constraint("Equal", 2, 6))
sketch8.addConstraint(Sketcher.Constraint("DistanceY", 1, 2, 1, 1, Q("13 mm")))
sketch8.addConstraint(Sketcher.Constraint("DistanceY", 3, 2, 3, 1, Q("19 mm")))
sketch8.addConstraint(Sketcher.Constraint("DistanceX", 0, 1, 0, 2, Q("70.65 mm")))
sketch8.addConstraint(Sketcher.Constraint("DistanceX", -1, 1, 0, 2, Q("63.3 mm")))
sketch8.addConstraint(Sketcher.Constraint("DistanceX", 4, 2, 4, 1, Q("41.325 mm")))
sketch8.setExpression("Constraints[19]", "Params.sketch8_height")
sketch8.setExpression("Constraints[20]", "Params.sketch8_height2")
sketch8.setExpression("Constraints[21]", "Params.sketch8_width")
pad6 = body2.newObject("PartDesign::Pad", "Pad005")
pad6.Profile = sketch8
pad6.setExpression("Length", "Params.pad6_length")
pad6.Reversed = True

sketch9 = body2.newObject("Sketcher::SketchObject", "Sketch008")
sketch9.AttachmentSupport = (doc.getObject("XY_Plane001"), [""])
sketch9.MapMode = "FlatFace"
sketch9.AttachmentOffset = App.Placement(App.Vector(0, 0, 12.2), App.Rotation())
sketch9.addGeometry(Part.LineSegment(App.Vector(48.6, 19, 0), App.Vector(48.6, 0, 0)), False)
sketch9.addGeometry(Part.LineSegment(App.Vector(48.6, 0, 0), App.Vector(46.6, 0, 0)), False)
sketch9.addGeometry(Part.LineSegment(App.Vector(46.6, 0, 0), App.Vector(46.6, 21, 0)), False)
sketch9.addGeometry(Part.LineSegment(App.Vector(46.6, 21, 0), App.Vector(61.3, 21, 0)), False)
sketch9.addGeometry(Part.LineSegment(App.Vector(61.3, 21, 0), App.Vector(61.3, 30, 0)), False)
sketch9.addGeometry(Part.LineSegment(App.Vector(61.3, 30, 0), App.Vector(-5.3, 30, 0)), False)
sketch9.addGeometry(Part.LineSegment(App.Vector(-5.3, 30, 0), App.Vector(-5.3, 21, 0)), False)
sketch9.addGeometry(Part.LineSegment(App.Vector(-5.3, 21, 0), App.Vector(9.3, 21, 0)), False)
sketch9.addGeometry(Part.LineSegment(App.Vector(9.3, 21, 0), App.Vector(9.3, 0, 0)), False)
sketch9.addGeometry(Part.LineSegment(App.Vector(9.3, 0, 0), App.Vector(7.3, 0, 0)), False)
sketch9.addGeometry(Part.LineSegment(App.Vector(7.3, 0, 0), App.Vector(7.3, 19, 0)), False)
sketch9.addGeometry(Part.LineSegment(App.Vector(7.3, 19, 0), App.Vector(-7.3, 19, 0)), False)
sketch9.addGeometry(Part.LineSegment(App.Vector(-7.3, 19, 0), App.Vector(-7.3, 32, 0)), False)
sketch9.addGeometry(Part.LineSegment(App.Vector(-7.3, 32, 0), App.Vector(63.3, 32, 0)), False)
sketch9.addGeometry(Part.LineSegment(App.Vector(63.3, 32, 0), App.Vector(63.3, 19, 0)), False)
sketch9.addGeometry(Part.LineSegment(App.Vector(63.3, 19, 0), App.Vector(48.6, 19, 0)), False)
sketch9.addConstraint(Sketcher.Constraint("Coincident", 0, 2, 1, 1))
sketch9.addConstraint(Sketcher.Constraint("Coincident", 1, 2, 2, 1))
sketch9.addConstraint(Sketcher.Constraint("Coincident", 2, 2, 3, 1))
sketch9.addConstraint(Sketcher.Constraint("Coincident", 3, 2, 4, 1))
sketch9.addConstraint(Sketcher.Constraint("Coincident", 4, 2, 5, 1))
sketch9.addConstraint(Sketcher.Constraint("Coincident", 5, 2, 6, 1))
sketch9.addConstraint(Sketcher.Constraint("Coincident", 6, 2, 7, 1))
sketch9.addConstraint(Sketcher.Constraint("Coincident", 7, 2, 8, 1))
sketch9.addConstraint(Sketcher.Constraint("Coincident", 8, 2, 9, 1))
sketch9.addConstraint(Sketcher.Constraint("Coincident", 9, 2, 10, 1))
sketch9.addConstraint(Sketcher.Constraint("Coincident", 10, 2, 11, 1))
sketch9.addConstraint(Sketcher.Constraint("Coincident", 11, 2, 12, 1))
sketch9.addConstraint(Sketcher.Constraint("Coincident", 12, 2, 13, 1))
sketch9.addConstraint(Sketcher.Constraint("Coincident", 13, 2, 14, 1))
sketch9.addConstraint(Sketcher.Constraint("Coincident", 14, 2, 15, 1))
sketch9.addConstraint(Sketcher.Constraint("Coincident", 15, 2, 0, 1))
sketch9.addConstraint(Sketcher.Constraint("Vertical", 0))
sketch9.addConstraint(Sketcher.Constraint("Horizontal", 1))
sketch9.addConstraint(Sketcher.Constraint("Vertical", 2))
sketch9.addConstraint(Sketcher.Constraint("Horizontal", 3))
sketch9.addConstraint(Sketcher.Constraint("Vertical", 4))
sketch9.addConstraint(Sketcher.Constraint("Horizontal", 5))
sketch9.addConstraint(Sketcher.Constraint("Vertical", 6))
sketch9.addConstraint(Sketcher.Constraint("Horizontal", 7))
sketch9.addConstraint(Sketcher.Constraint("Vertical", 8))
sketch9.addConstraint(Sketcher.Constraint("Horizontal", 9))
sketch9.addConstraint(Sketcher.Constraint("Vertical", 10))
sketch9.addConstraint(Sketcher.Constraint("Horizontal", 11))
sketch9.addConstraint(Sketcher.Constraint("Vertical", 12))
sketch9.addConstraint(Sketcher.Constraint("Horizontal", 13))
sketch9.addConstraint(Sketcher.Constraint("Vertical", 14))
sketch9.addConstraint(Sketcher.Constraint("Horizontal", 15))
sketch9.addConstraint(Sketcher.Constraint("PointOnObject", 0, 2, -1))
sketch9.addConstraint(Sketcher.Constraint("PointOnObject", 8, 2, -1))
sketch9.addConstraint(Sketcher.Constraint("Horizontal", 3, 2, 6, 2))
sketch9.addConstraint(Sketcher.Constraint("Horizontal", 11, 2, 14, 2))
sketch9.addConstraint(Sketcher.Constraint("Equal", 3, 7))
sketch9.addConstraint(Sketcher.Constraint("Equal", 1, 9))
sketch9.addConstraint(Sketcher.Constraint("Equal", 7, 11))
sketch9.addConstraint(Sketcher.Constraint("Equal", 11, 15))
sketch9.addConstraint(Sketcher.Constraint("DistanceX", 1, 2, 1, 1, Q("2 mm")))
sketch9.addConstraint(Sketcher.Constraint("DistanceY", 0, 2, 0, 1, Q("19 mm")))
sketch9.addConstraint(Sketcher.Constraint("DistanceY", 2, 1, 2, 2, Q("21 mm")))
sketch9.addConstraint(Sketcher.Constraint("DistanceY", 4, 1, 4, 2, Q("9 mm")))
sketch9.addConstraint(Sketcher.Constraint("DistanceY", 12, 1, 12, 2, Q("13 mm")))
sketch9.addConstraint(Sketcher.Constraint("DistanceX", 5, 2, 5, 1, Q("66.65 mm")))
sketch9.addConstraint(Sketcher.Constraint("DistanceX", -1, 1, 3, 2, Q("61.3 mm")))
sketch9.addConstraint(Sketcher.Constraint("DistanceX", 3, 1, 3, 2, Q("14.6625 mm")))
sketch9.setExpression("Constraints[40]", "Params.sketch9_width")
sketch9.setExpression("Constraints[41]", "Params.sketch9_height")
sketch9.setExpression("Constraints[42]", "Params.sketch9_height2")
sketch9.setExpression("Constraints[43]", "Params.sketch9_height3")
sketch9.setExpression("Constraints[44]", "Params.sketch9_height4")
pad7 = body2.newObject("PartDesign::Pad", "Pad006")
pad7.Profile = sketch9
pad7.setExpression("Length", "Params.pad7_length")
pad7.Reversed = True
doc.recompute()

fillet4 = body2.newObject("PartDesign::Fillet", "Fillet003")
fillet4.Base = (pad7, edges_at(pad7, [
    (48.638, 19, 8.7),
    (48.638, 0, 5.6),
    (7.312, 0, 5.6),
    (63.3, 32, 8.7),
    (63.3, 19, 8.7),
    (7.312, 19, 8.7),
    (-7.35, 19, 8.7),
    (-7.35, 32, 8.7),
]))
fillet4.setExpression("Radius", "Params.fillet4_radius")
doc.recompute()

fillet5 = body2.newObject("PartDesign::Fillet", "Fillet004")
fillet5.Base = (fillet4, edges_at(fillet4, [
    (0, 7.35, 5),
    (0, 0, 5),
    (-7.35, 0, 5),
    (-7.35, 7.35, 5),
    (55.95, 7.35, 5),
    (55.95, 0, 5),
    (63.3, 0, 5),
    (63.3, 7.35, 5),
]))
fillet5.setExpression("Radius", "Params.fillet5_radius")
mirroring.Visibility = False

doc.recompute()
